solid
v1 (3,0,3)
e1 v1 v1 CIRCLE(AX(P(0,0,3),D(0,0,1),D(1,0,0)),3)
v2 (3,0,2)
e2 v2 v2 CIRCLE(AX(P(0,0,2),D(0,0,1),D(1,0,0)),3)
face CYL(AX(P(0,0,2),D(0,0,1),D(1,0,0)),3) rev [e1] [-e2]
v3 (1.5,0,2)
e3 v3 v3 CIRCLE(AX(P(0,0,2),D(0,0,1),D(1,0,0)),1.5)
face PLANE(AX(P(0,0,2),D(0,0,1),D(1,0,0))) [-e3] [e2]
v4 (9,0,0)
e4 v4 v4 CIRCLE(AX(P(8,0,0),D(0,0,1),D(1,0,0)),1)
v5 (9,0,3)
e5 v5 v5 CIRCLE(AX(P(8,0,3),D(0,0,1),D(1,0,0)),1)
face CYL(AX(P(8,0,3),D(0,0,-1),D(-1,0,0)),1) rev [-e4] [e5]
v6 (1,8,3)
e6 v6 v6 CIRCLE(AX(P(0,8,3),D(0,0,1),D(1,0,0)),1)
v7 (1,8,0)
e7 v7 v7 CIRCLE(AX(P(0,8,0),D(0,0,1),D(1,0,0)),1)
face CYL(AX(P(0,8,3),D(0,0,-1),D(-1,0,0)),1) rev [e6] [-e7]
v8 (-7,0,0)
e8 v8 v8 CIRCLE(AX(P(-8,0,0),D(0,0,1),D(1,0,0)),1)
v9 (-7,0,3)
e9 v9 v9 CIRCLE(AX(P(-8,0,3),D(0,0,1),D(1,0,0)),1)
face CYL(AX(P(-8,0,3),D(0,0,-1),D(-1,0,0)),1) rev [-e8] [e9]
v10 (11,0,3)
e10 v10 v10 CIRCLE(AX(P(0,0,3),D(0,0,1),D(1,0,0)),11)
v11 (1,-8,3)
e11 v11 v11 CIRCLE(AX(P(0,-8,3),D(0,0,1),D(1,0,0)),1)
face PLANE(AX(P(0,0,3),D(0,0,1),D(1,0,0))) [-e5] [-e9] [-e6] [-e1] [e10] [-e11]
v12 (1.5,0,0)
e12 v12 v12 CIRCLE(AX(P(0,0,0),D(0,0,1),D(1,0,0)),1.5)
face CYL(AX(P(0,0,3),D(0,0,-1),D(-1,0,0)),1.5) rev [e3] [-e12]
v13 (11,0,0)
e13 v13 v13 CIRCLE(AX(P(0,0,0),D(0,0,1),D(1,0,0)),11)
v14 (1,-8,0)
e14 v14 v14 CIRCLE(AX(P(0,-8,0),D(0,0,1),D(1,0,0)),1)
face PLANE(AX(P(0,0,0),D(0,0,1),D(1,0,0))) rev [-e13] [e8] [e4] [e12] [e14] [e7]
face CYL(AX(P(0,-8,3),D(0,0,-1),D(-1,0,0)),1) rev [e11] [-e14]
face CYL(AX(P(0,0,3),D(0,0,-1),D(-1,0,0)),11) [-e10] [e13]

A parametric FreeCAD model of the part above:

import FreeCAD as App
import Part
import Sketcher

V = App.Vector

doc = App.newDocument("Part")
body = doc.addObject("PartDesign::Body", "Body")

# Sketch on XY plane
sketch1 = body.newObject("Sketcher::SketchObject", "Sketch")
sketch1.AttachmentSupport = (doc.getObject("XY_Plane"), [""])
sketch1.MapMode = "FlatFace"
sketch1.addGeometry(Part.Circle(V(0, 0, 0), V(0, 0, 1), 11), False)
sketch1.addGeometry(Part.Circle(V(0, -8, 0), V(0, 0, 1), 1), False)
sketch1.addGeometry(Part.Circle(V(-8, 0, 0), V(0, 0, 1), 1), False)
sketch1.addGeometry(Part.Circle(V(0, 0, 0), V(0, 0, 1), 1.5), False)
sketch1.addGeometry(Part.Circle(V(8, 0, 0), V(0, 0, 1), 1), False)
sketch1.addGeometry(Part.Circle(V(0, 8, 0), V(0, 0, 1), 1), False)
sketch1.addConstraint(Sketcher.Constraint("Coincident", 0, 3, -1, 1))
sketch1.addConstraint(Sketcher.Constraint("Coincident", 3, 3, -1, 1))
sketch1.addConstraint(Sketcher.Constraint("Equal", 1, 2))
sketch1.addConstraint(Sketcher.Constraint("Equal", 2, 4))
sketch1.addConstraint(Sketcher.Constraint("Equal", 4, 5))
sketch1.addConstraint(Sketcher.Constraint("Symmetric", 2, 3, 4, 3, -1, 1))
sketch1.addConstraint(Sketcher.Constraint("Symmetric", 1, 3, 5, 3, -1, 1))
sketch1.addConstraint(Sketcher.Constraint("PointOnObject", 1, 3, -2))
sketch1.addConstraint(Sketcher.Constraint("PointOnObject", 2, 3, -1))
sketch1.addConstraint(Sketcher.Constraint("Diameter", 0, 22.0))
sketch1.addConstraint(Sketcher.Constraint("Diameter", 1, 2.0))
sketch1.addConstraint(Sketcher.Constraint("Diameter", 3, 3.0))
sketch1.addConstraint(Sketcher.Constraint("DistanceY", 1, 3, -1, 1, 8.0))
sketch1.addConstraint(Sketcher.Constraint("DistanceX", 2, 3, -1, 1, 8.0))
pad1 = body.newObject("PartDesign::Pad", "Pad")
pad1.Profile = sketch1
pad1.Length = 3

# Sketch on XY plane
sketch2 = body.newObject("Sketcher::SketchObject", "Sketch001")
sketch2.AttachmentSupport = (doc.getObject("XY_Plane"), [""])
sketch2.MapMode = "FlatFace"
sketch2.AttachmentOffset = App.Placement(V(0, 0, 3), App.Rotation())
sketch2.addGeometry(Part.Circle(V(0, 0, 0), V(0, 0, 1), 3), False)
sketch2.addConstraint(Sketcher.Constraint("Coincident", 0, 3, -1, 1))
sketch2.addConstraint(Sketcher.Constraint("Diameter", 0, 6.0))
pocket1 = body.newObject("PartDesign::Pocket", "Pocket")
pocket1.Profile = sketch2
pocket1.Length = 1

doc.recompute()
